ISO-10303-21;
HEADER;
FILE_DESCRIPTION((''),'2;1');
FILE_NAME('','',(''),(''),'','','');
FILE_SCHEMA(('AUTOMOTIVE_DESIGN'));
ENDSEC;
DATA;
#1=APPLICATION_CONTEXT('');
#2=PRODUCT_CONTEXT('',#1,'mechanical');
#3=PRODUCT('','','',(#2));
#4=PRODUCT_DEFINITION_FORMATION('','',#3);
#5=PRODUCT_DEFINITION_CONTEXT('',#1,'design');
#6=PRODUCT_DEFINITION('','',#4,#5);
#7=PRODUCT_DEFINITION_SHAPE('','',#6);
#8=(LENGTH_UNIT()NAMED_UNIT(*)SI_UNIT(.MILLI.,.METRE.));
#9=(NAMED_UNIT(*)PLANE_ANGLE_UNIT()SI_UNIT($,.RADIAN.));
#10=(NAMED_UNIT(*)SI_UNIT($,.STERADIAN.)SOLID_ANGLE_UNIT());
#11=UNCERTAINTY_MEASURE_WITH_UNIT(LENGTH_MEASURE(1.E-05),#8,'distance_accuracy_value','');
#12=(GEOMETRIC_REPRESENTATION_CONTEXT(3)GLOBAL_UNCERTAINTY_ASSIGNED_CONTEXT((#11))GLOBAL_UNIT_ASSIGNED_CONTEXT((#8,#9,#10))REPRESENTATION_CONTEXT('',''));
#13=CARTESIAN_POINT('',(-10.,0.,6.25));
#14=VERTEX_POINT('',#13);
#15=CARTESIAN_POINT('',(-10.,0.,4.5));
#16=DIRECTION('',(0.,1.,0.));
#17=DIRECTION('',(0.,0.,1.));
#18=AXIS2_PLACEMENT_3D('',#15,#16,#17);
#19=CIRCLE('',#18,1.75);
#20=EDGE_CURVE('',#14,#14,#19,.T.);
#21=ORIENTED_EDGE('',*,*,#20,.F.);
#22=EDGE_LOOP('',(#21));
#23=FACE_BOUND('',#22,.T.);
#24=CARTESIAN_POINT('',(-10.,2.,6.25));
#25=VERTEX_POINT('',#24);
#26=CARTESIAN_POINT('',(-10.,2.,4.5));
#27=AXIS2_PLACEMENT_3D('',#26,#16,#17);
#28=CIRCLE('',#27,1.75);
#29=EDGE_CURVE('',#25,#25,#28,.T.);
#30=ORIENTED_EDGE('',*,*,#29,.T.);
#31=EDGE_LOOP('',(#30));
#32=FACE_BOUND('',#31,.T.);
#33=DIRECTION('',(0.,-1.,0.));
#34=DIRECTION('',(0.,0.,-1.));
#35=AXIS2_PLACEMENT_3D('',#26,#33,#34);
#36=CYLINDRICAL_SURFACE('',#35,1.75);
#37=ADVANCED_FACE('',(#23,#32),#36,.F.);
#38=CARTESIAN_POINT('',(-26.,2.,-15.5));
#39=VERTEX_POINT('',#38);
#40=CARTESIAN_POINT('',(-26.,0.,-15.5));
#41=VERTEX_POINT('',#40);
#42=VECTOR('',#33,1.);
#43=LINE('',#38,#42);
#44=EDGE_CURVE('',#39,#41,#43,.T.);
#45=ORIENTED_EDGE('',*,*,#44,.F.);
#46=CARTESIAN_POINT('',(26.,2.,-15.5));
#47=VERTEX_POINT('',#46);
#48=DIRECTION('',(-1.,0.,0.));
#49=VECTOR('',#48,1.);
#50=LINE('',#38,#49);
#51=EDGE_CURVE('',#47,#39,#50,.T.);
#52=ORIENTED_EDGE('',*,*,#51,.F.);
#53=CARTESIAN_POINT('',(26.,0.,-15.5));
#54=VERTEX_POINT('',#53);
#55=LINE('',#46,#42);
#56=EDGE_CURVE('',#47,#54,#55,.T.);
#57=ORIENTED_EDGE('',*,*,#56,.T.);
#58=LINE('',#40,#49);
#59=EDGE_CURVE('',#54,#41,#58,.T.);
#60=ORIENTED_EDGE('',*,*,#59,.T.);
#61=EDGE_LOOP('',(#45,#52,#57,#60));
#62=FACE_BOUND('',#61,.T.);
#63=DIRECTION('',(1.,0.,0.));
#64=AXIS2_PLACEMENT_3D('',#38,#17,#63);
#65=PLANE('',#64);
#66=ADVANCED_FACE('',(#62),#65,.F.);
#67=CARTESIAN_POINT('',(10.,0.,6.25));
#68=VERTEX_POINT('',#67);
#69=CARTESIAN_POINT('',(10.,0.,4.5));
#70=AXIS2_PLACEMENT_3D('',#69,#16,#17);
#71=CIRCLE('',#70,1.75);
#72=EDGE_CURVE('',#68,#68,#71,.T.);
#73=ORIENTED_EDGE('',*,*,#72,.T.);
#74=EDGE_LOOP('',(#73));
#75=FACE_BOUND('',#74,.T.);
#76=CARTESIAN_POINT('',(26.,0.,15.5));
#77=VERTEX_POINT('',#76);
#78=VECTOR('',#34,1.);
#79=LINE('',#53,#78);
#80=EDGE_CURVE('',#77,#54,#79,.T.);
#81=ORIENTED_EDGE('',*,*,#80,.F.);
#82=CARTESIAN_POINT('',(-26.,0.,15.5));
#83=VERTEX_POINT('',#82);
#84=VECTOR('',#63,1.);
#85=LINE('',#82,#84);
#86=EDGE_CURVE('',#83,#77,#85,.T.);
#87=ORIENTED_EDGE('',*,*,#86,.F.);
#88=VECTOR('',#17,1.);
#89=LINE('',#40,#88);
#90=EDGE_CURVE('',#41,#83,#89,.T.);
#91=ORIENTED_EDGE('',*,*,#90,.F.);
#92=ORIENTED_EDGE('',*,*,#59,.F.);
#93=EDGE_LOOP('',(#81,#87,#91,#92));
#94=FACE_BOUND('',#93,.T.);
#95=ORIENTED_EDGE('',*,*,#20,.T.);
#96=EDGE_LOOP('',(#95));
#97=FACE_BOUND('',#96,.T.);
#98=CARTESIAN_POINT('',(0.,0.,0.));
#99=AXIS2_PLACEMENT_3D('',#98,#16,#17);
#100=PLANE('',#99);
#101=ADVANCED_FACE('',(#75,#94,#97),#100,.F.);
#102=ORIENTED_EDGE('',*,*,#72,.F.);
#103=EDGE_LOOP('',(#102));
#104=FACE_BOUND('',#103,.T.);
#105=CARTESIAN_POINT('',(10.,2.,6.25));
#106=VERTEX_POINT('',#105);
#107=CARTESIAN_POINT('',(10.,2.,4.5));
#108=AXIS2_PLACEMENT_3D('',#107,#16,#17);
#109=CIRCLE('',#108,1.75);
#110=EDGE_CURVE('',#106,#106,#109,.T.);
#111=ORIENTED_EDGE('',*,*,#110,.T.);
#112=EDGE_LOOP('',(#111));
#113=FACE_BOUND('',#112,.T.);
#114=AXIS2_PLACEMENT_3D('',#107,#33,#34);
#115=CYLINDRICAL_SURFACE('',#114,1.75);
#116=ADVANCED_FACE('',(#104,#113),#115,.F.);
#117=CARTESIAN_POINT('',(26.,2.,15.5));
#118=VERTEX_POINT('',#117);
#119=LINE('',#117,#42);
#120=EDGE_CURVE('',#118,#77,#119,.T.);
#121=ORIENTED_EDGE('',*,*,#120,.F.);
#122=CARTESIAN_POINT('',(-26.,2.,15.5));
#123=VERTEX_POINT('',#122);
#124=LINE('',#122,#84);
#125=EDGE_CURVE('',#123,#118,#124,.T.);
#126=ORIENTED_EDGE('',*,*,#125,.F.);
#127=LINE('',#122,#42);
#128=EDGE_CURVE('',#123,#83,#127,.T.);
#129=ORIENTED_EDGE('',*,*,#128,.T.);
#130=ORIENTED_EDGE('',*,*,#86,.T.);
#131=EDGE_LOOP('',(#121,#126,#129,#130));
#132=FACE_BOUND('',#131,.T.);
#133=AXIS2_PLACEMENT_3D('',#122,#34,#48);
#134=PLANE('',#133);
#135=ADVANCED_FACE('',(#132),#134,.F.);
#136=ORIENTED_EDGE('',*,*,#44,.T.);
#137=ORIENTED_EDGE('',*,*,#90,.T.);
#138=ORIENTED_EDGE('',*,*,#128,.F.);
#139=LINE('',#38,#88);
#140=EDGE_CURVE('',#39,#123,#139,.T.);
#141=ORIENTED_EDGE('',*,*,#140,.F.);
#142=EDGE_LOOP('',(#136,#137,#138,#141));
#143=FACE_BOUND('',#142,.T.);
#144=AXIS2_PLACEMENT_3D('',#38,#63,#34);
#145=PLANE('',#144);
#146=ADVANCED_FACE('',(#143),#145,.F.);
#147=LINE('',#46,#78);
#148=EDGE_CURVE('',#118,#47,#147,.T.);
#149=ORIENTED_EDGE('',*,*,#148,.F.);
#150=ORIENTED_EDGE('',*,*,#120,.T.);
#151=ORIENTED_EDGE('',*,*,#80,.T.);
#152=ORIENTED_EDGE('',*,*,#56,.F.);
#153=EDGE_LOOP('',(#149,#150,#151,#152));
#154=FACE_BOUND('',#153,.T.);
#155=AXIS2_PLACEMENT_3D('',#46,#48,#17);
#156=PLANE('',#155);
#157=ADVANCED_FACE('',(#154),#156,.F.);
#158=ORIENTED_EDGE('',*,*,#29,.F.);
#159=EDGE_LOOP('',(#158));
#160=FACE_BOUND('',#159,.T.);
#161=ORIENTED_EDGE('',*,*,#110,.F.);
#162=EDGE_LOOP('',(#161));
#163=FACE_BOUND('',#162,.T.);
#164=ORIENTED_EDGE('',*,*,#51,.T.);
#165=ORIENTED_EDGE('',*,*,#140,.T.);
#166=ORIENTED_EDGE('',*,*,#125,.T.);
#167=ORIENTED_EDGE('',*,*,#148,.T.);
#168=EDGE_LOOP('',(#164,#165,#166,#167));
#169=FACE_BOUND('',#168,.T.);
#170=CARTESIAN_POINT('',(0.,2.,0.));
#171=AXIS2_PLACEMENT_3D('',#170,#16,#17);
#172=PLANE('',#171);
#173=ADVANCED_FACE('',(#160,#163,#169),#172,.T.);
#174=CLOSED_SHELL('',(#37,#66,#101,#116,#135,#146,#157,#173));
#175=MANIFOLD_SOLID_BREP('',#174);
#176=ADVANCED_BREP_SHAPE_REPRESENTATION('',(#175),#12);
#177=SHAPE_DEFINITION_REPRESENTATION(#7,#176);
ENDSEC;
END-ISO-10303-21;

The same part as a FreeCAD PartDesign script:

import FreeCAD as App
import Part
import Sketcher


def add_polygon(sketch, points):
    """Adds a closed chain of lines whose ends are joined by coincident constraints."""
    first, n = sketch.GeometryCount, len(points)
    for a, b in zip(points, points[1:] + points[:1]):
        sketch.addGeometry(Part.LineSegment(App.Vector(*a, 0), App.Vector(*b, 0)), False)
    for i in range(n):
        sketch.addConstraint(Sketcher.Constraint("Coincident", first + i, 2, first + (i + 1) % n, 1))

doc = App.newDocument("Part")
params = doc.addObject("Spreadsheet::Sheet", "Params")
for row, (alias, value) in enumerate([
    ("sketch1_diameter", "3.5 mm"),
    ("sketch1_width", "52 mm"),
    ("sketch1_height", "31 mm"),
    ("pad1_length", "2 mm"),
], start=1):
    params.set(f"A{row}", alias)
    params.set(f"B{row}", "=" + value)
    params.setAlias(f"B{row}", alias)

body = doc.addObject("PartDesign::Body", "Body")

# Sketch on XZ plane
sketch1 = body.newObject("Sketcher::SketchObject", "Sketch")
sketch1.AttachmentSupport = (doc.getObject("XZ_Plane"), [""])
sketch1.MapMode = "FlatFace"
add_polygon(sketch1, [(-26, -15.5), (-26, 15.5), (26, 15.5), (26, -15.5)])  # lines 0-3
sketch1.addGeometry(Part.Circle(App.Vector(-10, 4.5, 0), App.Vector(0, 0, 1), 1.8), False)  # 4
sketch1.addGeometry(Part.Circle(App.Vector(10, 4.5, 0), App.Vector(0, 0, 1), 1.8), False)  # 5
sketch1.addConstraint([
    Sketcher.Constraint("Vertical", 0),
    Sketcher.Constraint("Horizontal", 1),
    Sketcher.Constraint("Vertical", 2),
    Sketcher.Constraint("Horizontal", 3),
    Sketcher.Constraint("Equal", 4, 5),
    Sketcher.Constraint("Symmetric", 0, 2, 2, 2, -1, 1),
    Sketcher.Constraint("Symmetric", 4, 3, 5, 3, -2),
    Sketcher.Constraint("Diameter", 4, 3.5),
    Sketcher.Constraint("DistanceX", 1, 1, 1, 2, 52.0),
    Sketcher.Constraint("DistanceY", 0, 1, 0, 2, 31.0),
    Sketcher.Constraint("DistanceX", 4, 3, -1, 1, 10.0),
    Sketcher.Constraint("DistanceY", 4, 3, 0, 2, 11.0),
])
sketch1.setExpression("Constraints[11]", "Params.sketch1_diameter")
sketch1.setExpression("Constraints[12]", "Params.sketch1_width")
sketch1.setExpression("Constraints[13]", "Params.sketch1_height")
pad1 = body.newObject("PartDesign::Pad", "Pad")
pad1.Profile = sketch1
pad1.setExpression("Length", "Params.pad1_length")
pad1.Reversed = True

doc.recompute()
